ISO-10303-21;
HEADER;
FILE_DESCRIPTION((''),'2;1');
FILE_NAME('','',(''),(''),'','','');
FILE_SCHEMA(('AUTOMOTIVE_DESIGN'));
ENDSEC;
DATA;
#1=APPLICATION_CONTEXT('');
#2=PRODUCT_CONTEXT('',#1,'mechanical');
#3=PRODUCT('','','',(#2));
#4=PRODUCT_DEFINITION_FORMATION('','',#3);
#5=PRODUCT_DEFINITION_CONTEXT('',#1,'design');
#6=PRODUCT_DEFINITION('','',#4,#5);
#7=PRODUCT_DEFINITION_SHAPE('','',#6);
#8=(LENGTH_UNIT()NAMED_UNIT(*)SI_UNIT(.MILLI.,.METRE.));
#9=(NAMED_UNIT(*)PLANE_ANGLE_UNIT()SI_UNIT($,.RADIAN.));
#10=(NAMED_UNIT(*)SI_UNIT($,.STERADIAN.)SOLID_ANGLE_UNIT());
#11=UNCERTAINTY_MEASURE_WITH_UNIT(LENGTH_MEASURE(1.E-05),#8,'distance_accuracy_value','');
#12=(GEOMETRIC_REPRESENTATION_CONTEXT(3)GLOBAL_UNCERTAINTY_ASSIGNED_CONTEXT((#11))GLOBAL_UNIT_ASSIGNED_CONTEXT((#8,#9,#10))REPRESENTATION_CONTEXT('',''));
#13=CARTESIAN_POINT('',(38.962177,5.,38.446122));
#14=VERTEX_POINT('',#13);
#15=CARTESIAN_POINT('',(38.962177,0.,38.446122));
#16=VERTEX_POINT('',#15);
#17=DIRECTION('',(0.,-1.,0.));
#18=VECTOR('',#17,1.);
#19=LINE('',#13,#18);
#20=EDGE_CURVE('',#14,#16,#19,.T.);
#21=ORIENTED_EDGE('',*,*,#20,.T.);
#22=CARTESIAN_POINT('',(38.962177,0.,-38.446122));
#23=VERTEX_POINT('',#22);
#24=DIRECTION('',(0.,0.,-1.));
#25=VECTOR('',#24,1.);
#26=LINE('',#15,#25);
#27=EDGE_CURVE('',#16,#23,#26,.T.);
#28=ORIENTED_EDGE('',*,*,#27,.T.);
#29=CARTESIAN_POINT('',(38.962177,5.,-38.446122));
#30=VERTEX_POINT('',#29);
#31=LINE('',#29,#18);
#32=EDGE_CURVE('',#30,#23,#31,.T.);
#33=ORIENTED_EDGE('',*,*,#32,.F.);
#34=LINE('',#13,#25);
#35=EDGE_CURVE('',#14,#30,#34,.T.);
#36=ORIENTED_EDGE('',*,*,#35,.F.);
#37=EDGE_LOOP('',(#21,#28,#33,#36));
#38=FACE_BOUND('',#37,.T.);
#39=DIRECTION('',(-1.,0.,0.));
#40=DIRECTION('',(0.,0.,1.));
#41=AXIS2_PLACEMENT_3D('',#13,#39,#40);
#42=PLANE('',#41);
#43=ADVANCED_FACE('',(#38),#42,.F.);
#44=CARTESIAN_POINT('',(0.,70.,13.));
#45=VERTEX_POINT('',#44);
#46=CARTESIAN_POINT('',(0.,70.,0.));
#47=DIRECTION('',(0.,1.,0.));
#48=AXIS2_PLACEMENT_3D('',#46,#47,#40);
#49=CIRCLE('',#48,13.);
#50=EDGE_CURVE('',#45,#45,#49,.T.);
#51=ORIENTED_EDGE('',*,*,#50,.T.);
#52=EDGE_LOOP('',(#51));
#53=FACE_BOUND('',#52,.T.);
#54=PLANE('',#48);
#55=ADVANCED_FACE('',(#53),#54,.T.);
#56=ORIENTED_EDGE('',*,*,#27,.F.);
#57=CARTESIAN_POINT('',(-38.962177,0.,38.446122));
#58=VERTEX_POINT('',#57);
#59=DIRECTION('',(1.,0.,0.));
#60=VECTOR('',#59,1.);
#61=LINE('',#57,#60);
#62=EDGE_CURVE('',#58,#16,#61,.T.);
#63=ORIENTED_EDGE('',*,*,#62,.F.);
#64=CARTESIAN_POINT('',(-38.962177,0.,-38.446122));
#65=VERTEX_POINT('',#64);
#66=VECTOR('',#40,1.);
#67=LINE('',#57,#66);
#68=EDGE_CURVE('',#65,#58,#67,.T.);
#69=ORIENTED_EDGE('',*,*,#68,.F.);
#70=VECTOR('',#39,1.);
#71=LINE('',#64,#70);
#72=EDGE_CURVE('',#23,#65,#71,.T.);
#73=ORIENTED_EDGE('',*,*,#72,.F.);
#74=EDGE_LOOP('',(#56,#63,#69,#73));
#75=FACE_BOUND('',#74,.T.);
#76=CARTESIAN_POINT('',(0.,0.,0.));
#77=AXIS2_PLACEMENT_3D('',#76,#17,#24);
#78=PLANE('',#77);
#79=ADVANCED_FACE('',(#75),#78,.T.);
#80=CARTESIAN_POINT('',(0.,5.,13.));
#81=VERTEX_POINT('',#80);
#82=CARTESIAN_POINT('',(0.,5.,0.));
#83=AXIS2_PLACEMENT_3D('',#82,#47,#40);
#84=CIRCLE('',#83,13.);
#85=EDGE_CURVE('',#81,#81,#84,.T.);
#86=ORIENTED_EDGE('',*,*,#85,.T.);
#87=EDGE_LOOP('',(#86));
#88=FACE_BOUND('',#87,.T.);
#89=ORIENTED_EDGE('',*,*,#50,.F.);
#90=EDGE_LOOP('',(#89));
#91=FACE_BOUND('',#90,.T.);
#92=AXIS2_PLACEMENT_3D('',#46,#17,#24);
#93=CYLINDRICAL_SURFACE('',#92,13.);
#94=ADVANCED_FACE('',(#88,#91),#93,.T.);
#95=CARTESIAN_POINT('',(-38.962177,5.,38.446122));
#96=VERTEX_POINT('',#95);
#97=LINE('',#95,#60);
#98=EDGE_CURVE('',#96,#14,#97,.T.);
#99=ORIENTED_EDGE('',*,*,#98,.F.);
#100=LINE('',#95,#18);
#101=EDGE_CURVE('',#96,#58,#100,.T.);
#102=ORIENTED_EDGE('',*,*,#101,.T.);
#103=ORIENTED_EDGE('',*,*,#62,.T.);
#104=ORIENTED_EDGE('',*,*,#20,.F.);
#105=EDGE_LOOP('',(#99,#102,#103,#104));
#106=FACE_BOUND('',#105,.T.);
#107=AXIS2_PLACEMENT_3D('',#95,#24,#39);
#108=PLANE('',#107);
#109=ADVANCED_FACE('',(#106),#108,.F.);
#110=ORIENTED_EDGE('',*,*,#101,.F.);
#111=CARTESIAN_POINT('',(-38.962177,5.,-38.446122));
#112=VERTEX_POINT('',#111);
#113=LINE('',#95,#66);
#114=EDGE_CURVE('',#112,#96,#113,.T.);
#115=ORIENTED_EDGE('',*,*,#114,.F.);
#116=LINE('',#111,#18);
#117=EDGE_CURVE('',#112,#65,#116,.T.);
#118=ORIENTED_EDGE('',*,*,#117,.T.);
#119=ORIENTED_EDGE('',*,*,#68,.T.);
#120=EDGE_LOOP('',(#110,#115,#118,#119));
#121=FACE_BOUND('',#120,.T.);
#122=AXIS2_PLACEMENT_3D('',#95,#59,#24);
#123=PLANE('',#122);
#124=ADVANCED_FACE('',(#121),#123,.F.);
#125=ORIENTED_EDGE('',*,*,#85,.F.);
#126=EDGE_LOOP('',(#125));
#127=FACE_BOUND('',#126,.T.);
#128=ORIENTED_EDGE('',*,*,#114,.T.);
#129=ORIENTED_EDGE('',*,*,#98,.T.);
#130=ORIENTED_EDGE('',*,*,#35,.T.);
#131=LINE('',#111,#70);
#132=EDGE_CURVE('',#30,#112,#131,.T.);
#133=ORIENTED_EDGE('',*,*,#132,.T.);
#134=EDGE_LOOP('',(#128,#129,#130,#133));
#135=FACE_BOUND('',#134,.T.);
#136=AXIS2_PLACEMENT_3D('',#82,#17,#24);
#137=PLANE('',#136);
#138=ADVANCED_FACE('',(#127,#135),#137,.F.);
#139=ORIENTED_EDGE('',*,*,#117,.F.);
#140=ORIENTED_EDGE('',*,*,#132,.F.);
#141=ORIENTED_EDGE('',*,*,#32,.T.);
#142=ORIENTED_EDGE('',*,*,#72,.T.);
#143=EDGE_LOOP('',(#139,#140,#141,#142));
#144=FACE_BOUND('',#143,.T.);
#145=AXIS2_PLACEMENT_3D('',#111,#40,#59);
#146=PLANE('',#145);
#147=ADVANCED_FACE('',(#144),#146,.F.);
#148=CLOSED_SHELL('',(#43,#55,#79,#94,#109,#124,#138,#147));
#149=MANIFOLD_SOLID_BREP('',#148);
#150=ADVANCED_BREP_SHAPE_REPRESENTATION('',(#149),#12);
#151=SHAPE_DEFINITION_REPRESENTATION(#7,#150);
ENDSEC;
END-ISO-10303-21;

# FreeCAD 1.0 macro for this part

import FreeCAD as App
import Part
import Sketcher

V = App.Vector

doc = App.newDocument("Part")
body = doc.addObject("PartDesign::Body", "Body")

sketch1 = doc.addObject("Sketcher::SketchObject", "Sketch")
body.addObject(sketch1)
sketch1.AttachmentSupport = (doc.XZ_Plane, [""])
sketch1.MapMode = "FlatFace"
sketch1.addGeometry(Part.LineSegment(V(-39, -38, 0), V(-39, 38, 0)), False)
sketch1.addGeometry(Part.LineSegment(V(-39, 38, 0), V(39, 38, 0)), False)
sketch1.addGeometry(Part.LineSegment(V(39, 38, 0), V(39, -38, 0)), False)
sketch1.addGeometry(Part.LineSegment(V(39, -38, 0), V(-39, -38, 0)), False)
sketch1.addConstraint(Sketcher.Constraint("Coincident", 0, 2, 1, 1))
sketch1.addConstraint(Sketcher.Constraint("Coincident", 1, 2, 2, 1))
sketch1.addConstraint(Sketcher.Constraint("Coincident", 2, 2, 3, 1))
sketch1.addConstraint(Sketcher.Constraint("Coincident", 3, 2, 0, 1))
sketch1.addConstraint(Sketcher.Constraint("Vertical", 0))
sketch1.addConstraint(Sketcher.Constraint("Horizontal", 1))
sketch1.addConstraint(Sketcher.Constraint("Vertical", 2))
sketch1.addConstraint(Sketcher.Constraint("Horizontal", 3))
sketch1.addConstraint(Sketcher.Constraint("Symmetric", 0, 2, 2, 2, -1, 1))
sketch1.addConstraint(Sketcher.Constraint("DistanceX", 1, 1, 1, 2, 77.924354))
sketch1.addConstraint(Sketcher.Constraint("DistanceY", 0, 1, 0, 2, 76.892243))
pad1 = doc.addObject("PartDesign::Pad", "Pad")
body.addObject(pad1)
pad1.Profile = sketch1
pad1.Length = 5
pad1.Reversed = True

sketch2 = doc.addObject("Sketcher::SketchObject", "Sketch001")
body.addObject(sketch2)
sketch2.AttachmentSupport = (doc.XZ_Plane, [""])
sketch2.MapMode = "FlatFace"
sketch2.AttachmentOffset = App.Placement(V(0, 0, -5), App.Rotation())
sketch2.addGeometry(Part.Circle(V(0, 0, 0), V(0, 0, 1), 13), False)
sketch2.addConstraint(Sketcher.Constraint("Coincident", 0, 3, -1, 1))
sketch2.addConstraint(Sketcher.Constraint("Diameter", 0, 26.0))
pad2 = doc.addObject("PartDesign::Pad", "Pad001")
body.addObject(pad2)
pad2.Profile = sketch2
pad2.Length = 65
pad2.Reversed = True

doc.recompute()
